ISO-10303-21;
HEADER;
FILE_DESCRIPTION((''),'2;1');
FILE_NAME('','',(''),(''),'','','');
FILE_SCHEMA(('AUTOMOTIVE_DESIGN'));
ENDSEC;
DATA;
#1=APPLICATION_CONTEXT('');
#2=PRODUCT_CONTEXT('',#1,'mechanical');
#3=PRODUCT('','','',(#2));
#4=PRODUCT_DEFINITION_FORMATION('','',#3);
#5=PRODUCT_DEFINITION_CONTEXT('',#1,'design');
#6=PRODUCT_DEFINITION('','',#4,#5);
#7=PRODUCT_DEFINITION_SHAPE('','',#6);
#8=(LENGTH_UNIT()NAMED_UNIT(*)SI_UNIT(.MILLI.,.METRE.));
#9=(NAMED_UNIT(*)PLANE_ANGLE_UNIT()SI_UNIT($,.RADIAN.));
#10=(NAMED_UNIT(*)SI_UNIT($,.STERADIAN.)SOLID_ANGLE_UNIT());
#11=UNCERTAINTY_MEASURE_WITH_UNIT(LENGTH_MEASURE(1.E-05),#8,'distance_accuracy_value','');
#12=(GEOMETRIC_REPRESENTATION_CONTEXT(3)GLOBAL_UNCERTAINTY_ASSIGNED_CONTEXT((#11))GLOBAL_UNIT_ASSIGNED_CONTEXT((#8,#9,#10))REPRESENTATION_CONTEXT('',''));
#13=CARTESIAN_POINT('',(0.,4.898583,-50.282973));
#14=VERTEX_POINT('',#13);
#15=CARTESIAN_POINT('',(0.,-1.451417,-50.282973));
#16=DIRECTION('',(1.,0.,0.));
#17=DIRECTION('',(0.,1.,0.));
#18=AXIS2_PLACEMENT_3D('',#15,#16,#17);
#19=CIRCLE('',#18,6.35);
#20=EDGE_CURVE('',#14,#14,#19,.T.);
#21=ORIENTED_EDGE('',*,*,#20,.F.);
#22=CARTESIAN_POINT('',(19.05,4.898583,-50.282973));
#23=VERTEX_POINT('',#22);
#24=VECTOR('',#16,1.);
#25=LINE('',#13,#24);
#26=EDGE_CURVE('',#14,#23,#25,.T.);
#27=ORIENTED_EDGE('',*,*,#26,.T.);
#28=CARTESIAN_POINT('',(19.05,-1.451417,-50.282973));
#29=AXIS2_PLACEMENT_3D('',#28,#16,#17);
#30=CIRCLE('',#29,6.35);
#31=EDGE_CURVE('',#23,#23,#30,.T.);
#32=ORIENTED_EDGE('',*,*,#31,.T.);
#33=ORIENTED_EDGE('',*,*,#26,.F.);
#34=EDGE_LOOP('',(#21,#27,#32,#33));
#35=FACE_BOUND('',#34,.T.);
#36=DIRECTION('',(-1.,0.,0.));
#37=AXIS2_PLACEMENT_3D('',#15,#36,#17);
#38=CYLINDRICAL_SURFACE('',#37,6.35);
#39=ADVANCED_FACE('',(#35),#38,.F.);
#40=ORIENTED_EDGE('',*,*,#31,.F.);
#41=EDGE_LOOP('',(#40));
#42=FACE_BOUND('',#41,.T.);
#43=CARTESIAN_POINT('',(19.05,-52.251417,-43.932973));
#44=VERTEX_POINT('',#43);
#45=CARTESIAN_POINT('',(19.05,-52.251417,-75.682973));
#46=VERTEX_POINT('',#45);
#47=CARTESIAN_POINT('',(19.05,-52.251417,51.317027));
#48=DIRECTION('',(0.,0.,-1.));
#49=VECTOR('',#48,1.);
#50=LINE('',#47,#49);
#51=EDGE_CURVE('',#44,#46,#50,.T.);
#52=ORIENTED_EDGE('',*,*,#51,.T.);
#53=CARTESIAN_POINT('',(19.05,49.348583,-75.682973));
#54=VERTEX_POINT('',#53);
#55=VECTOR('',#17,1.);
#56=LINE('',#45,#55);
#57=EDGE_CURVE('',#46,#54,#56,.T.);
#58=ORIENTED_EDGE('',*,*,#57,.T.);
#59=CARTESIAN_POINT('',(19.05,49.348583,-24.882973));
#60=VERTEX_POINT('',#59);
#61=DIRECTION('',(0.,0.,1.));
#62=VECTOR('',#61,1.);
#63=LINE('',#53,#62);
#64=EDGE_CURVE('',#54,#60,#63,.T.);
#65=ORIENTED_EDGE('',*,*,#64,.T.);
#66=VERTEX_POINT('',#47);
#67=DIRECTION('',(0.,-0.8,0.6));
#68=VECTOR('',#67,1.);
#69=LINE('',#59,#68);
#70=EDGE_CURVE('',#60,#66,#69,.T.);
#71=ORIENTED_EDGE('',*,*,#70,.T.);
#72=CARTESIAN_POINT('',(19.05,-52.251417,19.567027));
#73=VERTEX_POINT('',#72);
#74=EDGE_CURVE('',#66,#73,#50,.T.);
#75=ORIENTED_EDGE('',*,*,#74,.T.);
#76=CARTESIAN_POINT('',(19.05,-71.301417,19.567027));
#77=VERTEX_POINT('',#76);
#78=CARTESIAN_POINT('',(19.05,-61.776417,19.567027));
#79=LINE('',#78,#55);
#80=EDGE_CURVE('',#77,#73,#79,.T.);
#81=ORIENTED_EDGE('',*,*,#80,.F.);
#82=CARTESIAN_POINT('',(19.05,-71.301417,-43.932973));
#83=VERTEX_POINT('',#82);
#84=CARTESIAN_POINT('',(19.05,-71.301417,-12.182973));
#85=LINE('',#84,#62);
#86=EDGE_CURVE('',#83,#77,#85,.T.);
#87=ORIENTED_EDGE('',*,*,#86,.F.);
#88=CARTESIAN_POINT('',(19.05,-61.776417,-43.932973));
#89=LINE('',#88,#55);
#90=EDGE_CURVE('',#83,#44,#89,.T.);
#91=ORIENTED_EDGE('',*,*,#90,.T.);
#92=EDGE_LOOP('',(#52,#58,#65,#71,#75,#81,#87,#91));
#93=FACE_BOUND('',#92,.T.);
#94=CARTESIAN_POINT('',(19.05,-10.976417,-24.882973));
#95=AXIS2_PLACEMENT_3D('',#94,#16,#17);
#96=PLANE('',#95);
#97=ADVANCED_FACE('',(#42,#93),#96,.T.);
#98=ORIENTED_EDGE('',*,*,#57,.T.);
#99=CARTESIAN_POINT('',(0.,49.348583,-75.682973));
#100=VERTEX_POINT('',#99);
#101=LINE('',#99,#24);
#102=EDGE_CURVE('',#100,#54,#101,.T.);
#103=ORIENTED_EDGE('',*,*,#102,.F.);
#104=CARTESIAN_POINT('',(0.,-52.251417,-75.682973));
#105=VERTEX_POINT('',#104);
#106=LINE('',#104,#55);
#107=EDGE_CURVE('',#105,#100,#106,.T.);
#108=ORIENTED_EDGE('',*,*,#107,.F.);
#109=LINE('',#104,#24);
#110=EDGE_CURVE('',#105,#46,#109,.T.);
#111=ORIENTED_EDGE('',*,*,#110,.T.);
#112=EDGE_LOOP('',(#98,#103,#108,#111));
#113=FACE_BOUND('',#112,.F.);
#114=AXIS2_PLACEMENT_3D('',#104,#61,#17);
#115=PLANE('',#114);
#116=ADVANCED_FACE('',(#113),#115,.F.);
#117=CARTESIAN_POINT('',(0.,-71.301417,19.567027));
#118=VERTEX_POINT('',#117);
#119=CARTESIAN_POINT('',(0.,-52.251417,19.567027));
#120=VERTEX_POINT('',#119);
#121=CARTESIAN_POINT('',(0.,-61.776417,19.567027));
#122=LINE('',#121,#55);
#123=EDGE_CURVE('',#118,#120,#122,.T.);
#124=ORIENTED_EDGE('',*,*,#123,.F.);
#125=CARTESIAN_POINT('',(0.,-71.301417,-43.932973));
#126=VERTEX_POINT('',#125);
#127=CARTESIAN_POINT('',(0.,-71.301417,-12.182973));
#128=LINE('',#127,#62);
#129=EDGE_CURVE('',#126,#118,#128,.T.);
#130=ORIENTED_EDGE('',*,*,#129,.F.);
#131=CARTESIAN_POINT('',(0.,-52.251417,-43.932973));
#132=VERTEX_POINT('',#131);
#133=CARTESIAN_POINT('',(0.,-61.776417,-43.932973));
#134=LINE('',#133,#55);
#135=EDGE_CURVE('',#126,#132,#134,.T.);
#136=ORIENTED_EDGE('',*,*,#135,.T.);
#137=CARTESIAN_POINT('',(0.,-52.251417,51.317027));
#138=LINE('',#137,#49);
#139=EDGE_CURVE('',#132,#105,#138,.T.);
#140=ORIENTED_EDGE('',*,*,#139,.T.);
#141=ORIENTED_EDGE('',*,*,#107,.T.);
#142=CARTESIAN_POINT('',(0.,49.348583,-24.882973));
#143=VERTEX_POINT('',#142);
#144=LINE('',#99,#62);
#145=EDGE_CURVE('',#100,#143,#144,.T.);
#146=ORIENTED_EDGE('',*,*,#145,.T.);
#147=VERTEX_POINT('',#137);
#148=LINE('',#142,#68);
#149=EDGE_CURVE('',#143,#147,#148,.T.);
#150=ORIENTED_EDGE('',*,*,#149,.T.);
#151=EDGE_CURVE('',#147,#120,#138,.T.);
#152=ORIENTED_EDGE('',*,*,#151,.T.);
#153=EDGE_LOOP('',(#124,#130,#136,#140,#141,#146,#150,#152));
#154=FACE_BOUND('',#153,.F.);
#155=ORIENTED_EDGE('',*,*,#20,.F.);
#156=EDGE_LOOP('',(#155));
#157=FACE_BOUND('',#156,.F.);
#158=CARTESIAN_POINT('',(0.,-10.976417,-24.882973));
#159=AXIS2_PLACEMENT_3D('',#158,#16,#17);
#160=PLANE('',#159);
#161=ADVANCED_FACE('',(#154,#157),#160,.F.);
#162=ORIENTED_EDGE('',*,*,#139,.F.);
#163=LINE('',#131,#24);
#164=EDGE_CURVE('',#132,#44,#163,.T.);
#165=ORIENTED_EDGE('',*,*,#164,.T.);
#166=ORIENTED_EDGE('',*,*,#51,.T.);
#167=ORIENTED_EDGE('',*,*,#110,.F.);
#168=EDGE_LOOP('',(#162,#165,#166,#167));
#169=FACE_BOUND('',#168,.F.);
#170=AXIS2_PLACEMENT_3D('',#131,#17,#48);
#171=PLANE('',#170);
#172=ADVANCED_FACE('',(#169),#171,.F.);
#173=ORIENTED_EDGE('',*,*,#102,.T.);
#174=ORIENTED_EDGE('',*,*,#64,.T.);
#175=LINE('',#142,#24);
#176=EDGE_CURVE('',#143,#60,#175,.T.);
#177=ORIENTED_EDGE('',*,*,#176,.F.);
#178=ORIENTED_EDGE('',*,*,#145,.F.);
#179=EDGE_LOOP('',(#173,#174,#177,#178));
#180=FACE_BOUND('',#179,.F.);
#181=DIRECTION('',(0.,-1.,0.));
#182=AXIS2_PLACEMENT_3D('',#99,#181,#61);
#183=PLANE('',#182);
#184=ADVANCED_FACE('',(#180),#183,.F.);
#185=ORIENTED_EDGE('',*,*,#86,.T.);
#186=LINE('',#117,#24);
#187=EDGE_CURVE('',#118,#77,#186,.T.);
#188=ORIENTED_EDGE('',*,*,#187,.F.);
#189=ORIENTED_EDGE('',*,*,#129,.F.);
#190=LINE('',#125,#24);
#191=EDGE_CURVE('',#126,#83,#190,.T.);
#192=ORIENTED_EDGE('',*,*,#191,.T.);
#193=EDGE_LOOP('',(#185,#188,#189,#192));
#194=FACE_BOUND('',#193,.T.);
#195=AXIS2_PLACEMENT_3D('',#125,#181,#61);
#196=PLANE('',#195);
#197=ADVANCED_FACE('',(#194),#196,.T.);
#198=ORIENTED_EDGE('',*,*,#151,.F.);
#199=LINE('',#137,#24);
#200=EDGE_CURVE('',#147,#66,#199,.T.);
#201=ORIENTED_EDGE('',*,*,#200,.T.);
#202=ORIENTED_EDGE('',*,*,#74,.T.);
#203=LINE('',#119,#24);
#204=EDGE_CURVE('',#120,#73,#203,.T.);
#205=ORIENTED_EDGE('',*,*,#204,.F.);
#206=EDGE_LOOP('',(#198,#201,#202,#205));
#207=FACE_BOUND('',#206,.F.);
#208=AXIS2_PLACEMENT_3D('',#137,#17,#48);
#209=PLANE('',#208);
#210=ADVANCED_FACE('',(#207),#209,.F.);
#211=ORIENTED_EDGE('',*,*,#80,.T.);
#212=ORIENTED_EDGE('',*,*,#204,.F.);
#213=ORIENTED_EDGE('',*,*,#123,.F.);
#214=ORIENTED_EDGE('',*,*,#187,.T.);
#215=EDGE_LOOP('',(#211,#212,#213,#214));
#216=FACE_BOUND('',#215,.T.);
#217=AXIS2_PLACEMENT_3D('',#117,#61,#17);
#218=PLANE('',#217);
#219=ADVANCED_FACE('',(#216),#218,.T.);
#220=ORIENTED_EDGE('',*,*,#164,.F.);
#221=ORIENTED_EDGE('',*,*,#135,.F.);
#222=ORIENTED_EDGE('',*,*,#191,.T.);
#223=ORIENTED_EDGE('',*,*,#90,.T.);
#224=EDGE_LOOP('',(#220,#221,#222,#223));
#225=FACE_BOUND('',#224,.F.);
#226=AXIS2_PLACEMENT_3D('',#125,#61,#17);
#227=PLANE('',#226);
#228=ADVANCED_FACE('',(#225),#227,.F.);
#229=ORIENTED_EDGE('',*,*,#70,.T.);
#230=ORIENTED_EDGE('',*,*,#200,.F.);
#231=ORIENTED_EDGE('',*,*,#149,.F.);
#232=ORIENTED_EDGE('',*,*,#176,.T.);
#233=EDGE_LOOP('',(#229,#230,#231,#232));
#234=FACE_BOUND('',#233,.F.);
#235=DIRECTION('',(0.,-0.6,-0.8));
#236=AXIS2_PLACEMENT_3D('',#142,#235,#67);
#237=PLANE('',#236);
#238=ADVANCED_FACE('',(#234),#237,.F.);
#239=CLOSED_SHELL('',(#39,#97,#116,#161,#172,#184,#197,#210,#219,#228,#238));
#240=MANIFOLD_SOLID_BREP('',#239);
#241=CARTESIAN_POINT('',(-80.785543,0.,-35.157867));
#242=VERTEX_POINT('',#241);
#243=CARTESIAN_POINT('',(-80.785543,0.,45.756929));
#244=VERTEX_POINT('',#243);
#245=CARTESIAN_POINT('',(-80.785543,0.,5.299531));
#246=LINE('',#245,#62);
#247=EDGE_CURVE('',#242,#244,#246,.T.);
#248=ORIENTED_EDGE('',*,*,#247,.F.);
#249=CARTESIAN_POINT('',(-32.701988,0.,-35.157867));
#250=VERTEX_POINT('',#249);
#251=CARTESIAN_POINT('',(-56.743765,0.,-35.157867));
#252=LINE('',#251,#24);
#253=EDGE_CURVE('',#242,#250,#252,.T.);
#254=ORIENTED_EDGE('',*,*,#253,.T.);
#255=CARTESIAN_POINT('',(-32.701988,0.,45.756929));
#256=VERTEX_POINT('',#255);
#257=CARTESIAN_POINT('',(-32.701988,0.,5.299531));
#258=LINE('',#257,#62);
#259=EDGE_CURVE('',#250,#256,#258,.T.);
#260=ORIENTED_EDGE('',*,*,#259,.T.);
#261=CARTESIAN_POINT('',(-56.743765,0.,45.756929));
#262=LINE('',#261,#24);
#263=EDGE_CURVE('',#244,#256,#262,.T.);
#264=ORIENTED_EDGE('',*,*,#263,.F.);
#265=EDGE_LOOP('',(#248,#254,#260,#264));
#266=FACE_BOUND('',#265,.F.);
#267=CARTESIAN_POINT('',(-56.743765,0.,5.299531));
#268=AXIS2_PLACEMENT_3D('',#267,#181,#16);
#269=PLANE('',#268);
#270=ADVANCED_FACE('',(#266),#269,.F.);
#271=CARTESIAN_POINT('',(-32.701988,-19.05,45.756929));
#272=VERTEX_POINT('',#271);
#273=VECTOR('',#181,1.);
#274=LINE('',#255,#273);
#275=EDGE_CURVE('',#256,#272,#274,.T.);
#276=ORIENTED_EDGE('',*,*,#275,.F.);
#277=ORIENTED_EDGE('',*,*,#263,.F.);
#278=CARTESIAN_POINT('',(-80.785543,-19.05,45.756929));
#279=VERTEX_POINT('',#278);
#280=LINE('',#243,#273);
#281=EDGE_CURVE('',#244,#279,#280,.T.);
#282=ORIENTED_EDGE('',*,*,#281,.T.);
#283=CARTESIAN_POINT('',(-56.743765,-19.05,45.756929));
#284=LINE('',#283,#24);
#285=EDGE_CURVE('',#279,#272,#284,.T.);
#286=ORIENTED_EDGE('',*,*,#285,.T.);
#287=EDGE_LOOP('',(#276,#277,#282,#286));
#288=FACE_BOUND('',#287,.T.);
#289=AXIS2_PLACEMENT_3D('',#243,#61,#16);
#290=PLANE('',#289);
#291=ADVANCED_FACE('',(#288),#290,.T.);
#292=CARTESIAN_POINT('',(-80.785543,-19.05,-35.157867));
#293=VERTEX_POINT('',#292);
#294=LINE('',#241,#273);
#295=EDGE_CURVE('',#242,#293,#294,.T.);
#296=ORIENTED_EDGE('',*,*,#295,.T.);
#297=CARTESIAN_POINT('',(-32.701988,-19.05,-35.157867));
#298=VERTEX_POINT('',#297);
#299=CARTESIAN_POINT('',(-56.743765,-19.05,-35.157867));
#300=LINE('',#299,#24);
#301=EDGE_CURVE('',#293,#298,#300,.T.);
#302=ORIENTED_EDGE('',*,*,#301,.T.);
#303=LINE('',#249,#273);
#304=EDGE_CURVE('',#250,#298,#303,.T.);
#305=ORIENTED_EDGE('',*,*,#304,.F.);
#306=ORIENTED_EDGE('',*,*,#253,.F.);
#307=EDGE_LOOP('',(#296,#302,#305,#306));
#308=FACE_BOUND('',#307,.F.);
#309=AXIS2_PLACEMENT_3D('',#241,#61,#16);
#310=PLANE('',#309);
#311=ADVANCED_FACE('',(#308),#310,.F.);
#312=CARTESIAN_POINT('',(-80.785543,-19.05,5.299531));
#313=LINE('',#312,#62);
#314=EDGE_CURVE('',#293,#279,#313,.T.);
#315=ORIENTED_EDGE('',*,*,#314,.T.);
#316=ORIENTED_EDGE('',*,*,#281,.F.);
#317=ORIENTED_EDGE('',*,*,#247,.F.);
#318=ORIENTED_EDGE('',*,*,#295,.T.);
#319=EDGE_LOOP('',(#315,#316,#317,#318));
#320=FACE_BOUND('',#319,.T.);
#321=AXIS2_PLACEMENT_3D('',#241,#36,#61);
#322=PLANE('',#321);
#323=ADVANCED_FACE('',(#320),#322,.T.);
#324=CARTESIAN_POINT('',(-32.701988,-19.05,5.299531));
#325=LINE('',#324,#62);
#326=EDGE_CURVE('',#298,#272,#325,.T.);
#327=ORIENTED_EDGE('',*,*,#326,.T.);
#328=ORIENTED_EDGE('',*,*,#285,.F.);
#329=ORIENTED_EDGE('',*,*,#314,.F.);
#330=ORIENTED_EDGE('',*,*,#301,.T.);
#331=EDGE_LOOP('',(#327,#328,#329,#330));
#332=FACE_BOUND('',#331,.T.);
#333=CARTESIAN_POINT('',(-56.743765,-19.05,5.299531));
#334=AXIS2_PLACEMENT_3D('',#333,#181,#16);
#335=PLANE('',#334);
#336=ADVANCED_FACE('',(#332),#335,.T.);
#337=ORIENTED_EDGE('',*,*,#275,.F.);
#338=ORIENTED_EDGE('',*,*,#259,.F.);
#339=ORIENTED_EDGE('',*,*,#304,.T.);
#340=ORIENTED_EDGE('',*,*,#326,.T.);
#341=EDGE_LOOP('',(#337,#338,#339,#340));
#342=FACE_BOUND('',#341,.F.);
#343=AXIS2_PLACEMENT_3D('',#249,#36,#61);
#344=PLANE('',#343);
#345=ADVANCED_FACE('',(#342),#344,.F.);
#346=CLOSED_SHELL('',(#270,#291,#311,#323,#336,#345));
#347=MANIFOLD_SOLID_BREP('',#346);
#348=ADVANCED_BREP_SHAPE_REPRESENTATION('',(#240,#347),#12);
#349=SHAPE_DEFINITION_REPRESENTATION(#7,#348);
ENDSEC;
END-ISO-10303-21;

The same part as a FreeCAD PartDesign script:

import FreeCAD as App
import Part
import Sketcher
from FreeCAD import Vector
Q = App.Units.Quantity

doc = App.newDocument("Part")
body = doc.addObject("PartDesign::Body", "Body")

# Sketch on YZ plane
sketch1 = body.newObject("Sketcher::SketchObject", "Sketch")
sketch1.AttachmentSupport = (doc.getObject("YZ_Plane"), [""])
sketch1.MapMode = "FlatFace"
sketch1.addGeometry(Part.LineSegment(Vector(49, -25, 0), Vector(-52, 51, 0)), False)
sketch1.addGeometry(Part.LineSegment(Vector(-52, 51, 0), Vector(-52, 20, 0)), False)
sketch1.addGeometry(Part.LineSegment(Vector(-52, 20, 0), Vector(-71, 20, 0)), False)
sketch1.addGeometry(Part.LineSegment(Vector(-71, 20, 0), Vector(-71, -44, 0)), False)
sketch1.addGeometry(Part.LineSegment(Vector(-71, -44, 0), Vector(-52, -44, 0)), False)
sketch1.addGeometry(Part.LineSegment(Vector(-52, -44, 0), Vector(-52, -76, 0)), False)
sketch1.addGeometry(Part.LineSegment(Vector(-52, -76, 0), Vector(49, -76, 0)), False)
sketch1.addGeometry(Part.LineSegment(Vector(49, -76, 0), Vector(49, -25, 0)), False)
sketch1.addGeometry(Part.Circle(Vector(-1, -50, 0), Vector(0, 0, 1), 6), False)
sketch1.addConstraint(Sketcher.Constraint("Coincident", 0, 2, 1, 1))
sketch1.addConstraint(Sketcher.Constraint("Coincident", 1, 2, 2, 1))
sketch1.addConstraint(Sketcher.Constraint("Coincident", 2, 2, 3, 1))
sketch1.addConstraint(Sketcher.Constraint("Coincident", 3, 2, 4, 1))
sketch1.addConstraint(Sketcher.Constraint("Coincident", 4, 2, 5, 1))
sketch1.addConstraint(Sketcher.Constraint("Coincident", 5, 2, 6, 1))
sketch1.addConstraint(Sketcher.Constraint("Coincident", 6, 2, 7, 1))
sketch1.addConstraint(Sketcher.Constraint("Coincident", 7, 2, 0, 1))
sketch1.addConstraint(Sketcher.Constraint("Vertical", 1))
sketch1.addConstraint(Sketcher.Constraint("Horizontal", 2))
sketch1.addConstraint(Sketcher.Constraint("Vertical", 3))
sketch1.addConstraint(Sketcher.Constraint("Horizontal", 4))
sketch1.addConstraint(Sketcher.Constraint("Vertical", 5))
sketch1.addConstraint(Sketcher.Constraint("Horizontal", 6))
sketch1.addConstraint(Sketcher.Constraint("Vertical", 7))
sketch1.addConstraint(Sketcher.Constraint("Vertical", 1, 2, 4, 2))
sketch1.addConstraint(Sketcher.Constraint("Equal", 1, 5))
sketch1.addConstraint(Sketcher.Constraint("Diameter", 8, Q("0.5 in")))
sketch1.addConstraint(Sketcher.Constraint("DistanceX", 6, 1, 6, 2, Q("4 in")))
sketch1.addConstraint(Sketcher.Constraint("DistanceY", 7, 1, 7, 2, Q("2 in")))
sketch1.addConstraint(Sketcher.Constraint("Distance", 0, Q("5 in")))
sketch1.addConstraint(Sketcher.Constraint("DistanceY", 3, 2, 3, 1, Q("2.5 in")))
sketch1.addConstraint(Sketcher.Constraint("DistanceX", 0, 2, 8, 3, Q("2 in")))
sketch1.addConstraint(Sketcher.Constraint("DistanceY", 8, 3, 0, 2, Q("4 in")))
sketch1.addConstraint(Sketcher.Constraint("DistanceX", 2, 2, 2, 1, Q("0.75 in")))
sketch1.addConstraint(Sketcher.Constraint("DistanceX", 8, 3, -1, 1, 1.451417))
sketch1.addConstraint(Sketcher.Constraint("DistanceY", 8, 3, -1, 1, 50.282973))
pad1 = body.newObject("PartDesign::Pad", "Pad")
pad1.Profile = sketch1
pad1.Length = Q("0.75 in")
body2 = doc.addObject("PartDesign::Body", "Body001")

# Sketch on XZ plane
sketch2 = body2.newObject("Sketcher::SketchObject", "Sketch001")
sketch2.AttachmentSupport = (doc.getObject("XZ_Plane001"), [""])
sketch2.MapMode = "FlatFace"
sketch2.addGeometry(Part.LineSegment(Vector(-81, 46, 0), Vector(-81, -35, 0)), False)
sketch2.addGeometry(Part.LineSegment(Vector(-81, -35, 0), Vector(-33, -35, 0)), False)
sketch2.addGeometry(Part.LineSegment(Vector(-33, -35, 0), Vector(-33, 46, 0)), False)
sketch2.addGeometry(Part.LineSegment(Vector(-33, 46, 0), Vector(-81, 46, 0)), False)
sketch2.addConstraint(Sketcher.Constraint("Coincident", 0, 2, 1, 1))
sketch2.addConstraint(Sketcher.Constraint("Coincident", 1, 2, 2, 1))
sketch2.addConstraint(Sketcher.Constraint("Coincident", 2, 2, 3, 1))
sketch2.addConstraint(Sketcher.Constraint("Coincident", 3, 2, 0, 1))
sketch2.addConstraint(Sketcher.Constraint("Vertical", 0))
sketch2.addConstraint(Sketcher.Constraint("Horizontal", 1))
sketch2.addConstraint(Sketcher.Constraint("Vertical", 2))
sketch2.addConstraint(Sketcher.Constraint("Horizontal", 3))
sketch2.addConstraint(Sketcher.Constraint("DistanceX", 1, 1, 1, 2, 48.083555))
sketch2.addConstraint(Sketcher.Constraint("DistanceY", 0, 2, 0, 1, 80.914796))
sketch2.addConstraint(Sketcher.Constraint("DistanceY", -1, 1, 2, 2, 45.756929))
sketch2.addConstraint(Sketcher.Constraint("DistanceX", 0, 2, -1, 1, 80.785543))
pad2 = body2.newObject("PartDesign::Pad", "Pad001")
pad2.Profile = sketch2
pad2.Length = Q("0.75 in")

doc.recompute()
